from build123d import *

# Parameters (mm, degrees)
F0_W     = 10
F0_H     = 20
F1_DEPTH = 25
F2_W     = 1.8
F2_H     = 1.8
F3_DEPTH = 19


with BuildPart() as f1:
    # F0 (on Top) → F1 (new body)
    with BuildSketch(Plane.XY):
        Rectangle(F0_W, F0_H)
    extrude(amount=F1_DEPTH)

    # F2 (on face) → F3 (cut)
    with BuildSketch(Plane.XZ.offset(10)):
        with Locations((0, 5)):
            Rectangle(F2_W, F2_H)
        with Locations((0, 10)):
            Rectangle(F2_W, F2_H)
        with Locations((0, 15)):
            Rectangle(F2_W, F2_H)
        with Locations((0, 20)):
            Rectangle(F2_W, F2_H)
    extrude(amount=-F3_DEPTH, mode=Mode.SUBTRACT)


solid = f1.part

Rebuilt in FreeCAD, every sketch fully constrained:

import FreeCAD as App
import Part
import Sketcher

V = App.Vector
Q = App.Units.Quantity


def add_polygon(sketch, points):
    """Adds a closed chain of lines whose ends are joined by coincident constraints."""
    first, n = sketch.GeometryCount, len(points)
    for a, b in zip(points, points[1:] + points[:1]):
        sketch.addGeometry(Part.LineSegment(App.Vector(*a, 0), App.Vector(*b, 0)), False)
    for i in range(n):
        sketch.addConstraint(Sketcher.Constraint("Coincident", first + i, 2, first + (i + 1) % n, 1))

doc = App.newDocument("Part")
body = doc.addObject("PartDesign::Body", "Body")

sketch1 = body.newObject("Sketcher::SketchObject", "Sketch")
sketch1.AttachmentSupport = (doc.getObject("XY_Plane"), [""])
sketch1.MapMode = "FlatFace"
add_polygon(sketch1, [(-5, 10), (-5, -10), (5, -10), (5, 10)])
sketch1.addConstraint([
    Sketcher.Constraint("Vertical", 0),
    Sketcher.Constraint("Horizontal", 1),
    Sketcher.Constraint("Vertical", 2),
    Sketcher.Constraint("Horizontal", 3),
    Sketcher.Constraint("Symmetric", 0, 2, 2, 2, -1, 1),
    Sketcher.Constraint("DistanceX", 1, 1, 1, 2, Q("10 mm")),
    Sketcher.Constraint("DistanceY", 0, 2, 0, 1, Q("20 mm")),
])
pad1 = body.newObject("PartDesign::Pad", "Pad")
pad1.Profile = sketch1
pad1.Length = 25

sketch2 = body.newObject("Sketcher::SketchObject", "Sketch001")
sketch2.AttachmentSupport = (doc.getObject("XZ_Plane"), [""])
sketch2.MapMode = "FlatFace"
sketch2.AttachmentOffset = App.Placement(V(0, 0, 10), App.Rotation())
add_polygon(sketch2, [(-0.9, 5.9), (-0.9, 4.1), (0.9, 4.1), (0.9, 5.9)])
add_polygon(sketch2, [(-0.9, 10.9), (-0.9, 9.1), (0.9, 9.1), (0.9, 10.9)])
add_polygon(sketch2, [(-0.9, 15.9), (-0.9, 14.1), (0.9, 14.1), (0.9, 15.9)])
add_polygon(sketch2, [(-0.9, 20.9), (-0.9, 19.1), (0.9, 19.1), (0.9, 20.9)])
sketch2.addConstraint([
    Sketcher.Constraint("Vertical", 0),
    Sketcher.Constraint("Horizontal", 1),
    Sketcher.Constraint("Vertical", 2),
    Sketcher.Constraint("Horizontal", 3),
    Sketcher.Constraint("Vertical", 4),
    Sketcher.Constraint("Horizontal", 5),
    Sketcher.Constraint("Vertical", 6),
    Sketcher.Constraint("Horizontal", 7),
    Sketcher.Constraint("Vertical", 8),
    Sketcher.Constraint("Horizontal", 9),
    Sketcher.Constraint("Vertical", 10),
    Sketcher.Constraint("Horizontal", 11),
    Sketcher.Constraint("Vertical", 12),
    Sketcher.Constraint("Horizontal", 13),
    Sketcher.Constraint("Vertical", 14),
    Sketcher.Constraint("Horizontal", 15),
    Sketcher.Constraint("Vertical", 3, 2, 4, 2),
    Sketcher.Constraint("Vertical", 2, 2, 5, 2),
    Sketcher.Constraint("Vertical", 7, 2, 8, 2),
    Sketcher.Constraint("Vertical", 6, 2, 9, 2),
    Sketcher.Constraint("Vertical", 11, 2, 12, 2),
    Sketcher.Constraint("Vertical", 10, 2, 13, 2),
    Sketcher.Constraint("Equal", 15, 0),
    Sketcher.Constraint("Equal", 2, 4),
    Sketcher.Constraint("Equal", 6, 8),
    Sketcher.Constraint("Equal", 10, 12),
    Sketcher.Constraint("DistanceX", 1, 1, 1, 2, Q("1.8 mm")),
    Sketcher.Constraint("DistanceY", 0, 2, 4, 2, Q("5 mm")),
    Sketcher.Constraint("DistanceY", 4, 2, 8, 2, Q("5 mm")),
    Sketcher.Constraint("DistanceY", 8, 2, 12, 2, Q("5 mm")),
    Sketcher.Constraint("DistanceX", 0, 2, -1, 1, Q("0.9 mm")),
    Sketcher.Constraint("DistanceY", -1, 1, 0, 2, Q("4.1 mm")),
])
pocket1 = body.newObject("PartDesign::Pocket", "Pocket")
pocket1.Profile = sketch2
pocket1.Length = 19

doc.recompute()
